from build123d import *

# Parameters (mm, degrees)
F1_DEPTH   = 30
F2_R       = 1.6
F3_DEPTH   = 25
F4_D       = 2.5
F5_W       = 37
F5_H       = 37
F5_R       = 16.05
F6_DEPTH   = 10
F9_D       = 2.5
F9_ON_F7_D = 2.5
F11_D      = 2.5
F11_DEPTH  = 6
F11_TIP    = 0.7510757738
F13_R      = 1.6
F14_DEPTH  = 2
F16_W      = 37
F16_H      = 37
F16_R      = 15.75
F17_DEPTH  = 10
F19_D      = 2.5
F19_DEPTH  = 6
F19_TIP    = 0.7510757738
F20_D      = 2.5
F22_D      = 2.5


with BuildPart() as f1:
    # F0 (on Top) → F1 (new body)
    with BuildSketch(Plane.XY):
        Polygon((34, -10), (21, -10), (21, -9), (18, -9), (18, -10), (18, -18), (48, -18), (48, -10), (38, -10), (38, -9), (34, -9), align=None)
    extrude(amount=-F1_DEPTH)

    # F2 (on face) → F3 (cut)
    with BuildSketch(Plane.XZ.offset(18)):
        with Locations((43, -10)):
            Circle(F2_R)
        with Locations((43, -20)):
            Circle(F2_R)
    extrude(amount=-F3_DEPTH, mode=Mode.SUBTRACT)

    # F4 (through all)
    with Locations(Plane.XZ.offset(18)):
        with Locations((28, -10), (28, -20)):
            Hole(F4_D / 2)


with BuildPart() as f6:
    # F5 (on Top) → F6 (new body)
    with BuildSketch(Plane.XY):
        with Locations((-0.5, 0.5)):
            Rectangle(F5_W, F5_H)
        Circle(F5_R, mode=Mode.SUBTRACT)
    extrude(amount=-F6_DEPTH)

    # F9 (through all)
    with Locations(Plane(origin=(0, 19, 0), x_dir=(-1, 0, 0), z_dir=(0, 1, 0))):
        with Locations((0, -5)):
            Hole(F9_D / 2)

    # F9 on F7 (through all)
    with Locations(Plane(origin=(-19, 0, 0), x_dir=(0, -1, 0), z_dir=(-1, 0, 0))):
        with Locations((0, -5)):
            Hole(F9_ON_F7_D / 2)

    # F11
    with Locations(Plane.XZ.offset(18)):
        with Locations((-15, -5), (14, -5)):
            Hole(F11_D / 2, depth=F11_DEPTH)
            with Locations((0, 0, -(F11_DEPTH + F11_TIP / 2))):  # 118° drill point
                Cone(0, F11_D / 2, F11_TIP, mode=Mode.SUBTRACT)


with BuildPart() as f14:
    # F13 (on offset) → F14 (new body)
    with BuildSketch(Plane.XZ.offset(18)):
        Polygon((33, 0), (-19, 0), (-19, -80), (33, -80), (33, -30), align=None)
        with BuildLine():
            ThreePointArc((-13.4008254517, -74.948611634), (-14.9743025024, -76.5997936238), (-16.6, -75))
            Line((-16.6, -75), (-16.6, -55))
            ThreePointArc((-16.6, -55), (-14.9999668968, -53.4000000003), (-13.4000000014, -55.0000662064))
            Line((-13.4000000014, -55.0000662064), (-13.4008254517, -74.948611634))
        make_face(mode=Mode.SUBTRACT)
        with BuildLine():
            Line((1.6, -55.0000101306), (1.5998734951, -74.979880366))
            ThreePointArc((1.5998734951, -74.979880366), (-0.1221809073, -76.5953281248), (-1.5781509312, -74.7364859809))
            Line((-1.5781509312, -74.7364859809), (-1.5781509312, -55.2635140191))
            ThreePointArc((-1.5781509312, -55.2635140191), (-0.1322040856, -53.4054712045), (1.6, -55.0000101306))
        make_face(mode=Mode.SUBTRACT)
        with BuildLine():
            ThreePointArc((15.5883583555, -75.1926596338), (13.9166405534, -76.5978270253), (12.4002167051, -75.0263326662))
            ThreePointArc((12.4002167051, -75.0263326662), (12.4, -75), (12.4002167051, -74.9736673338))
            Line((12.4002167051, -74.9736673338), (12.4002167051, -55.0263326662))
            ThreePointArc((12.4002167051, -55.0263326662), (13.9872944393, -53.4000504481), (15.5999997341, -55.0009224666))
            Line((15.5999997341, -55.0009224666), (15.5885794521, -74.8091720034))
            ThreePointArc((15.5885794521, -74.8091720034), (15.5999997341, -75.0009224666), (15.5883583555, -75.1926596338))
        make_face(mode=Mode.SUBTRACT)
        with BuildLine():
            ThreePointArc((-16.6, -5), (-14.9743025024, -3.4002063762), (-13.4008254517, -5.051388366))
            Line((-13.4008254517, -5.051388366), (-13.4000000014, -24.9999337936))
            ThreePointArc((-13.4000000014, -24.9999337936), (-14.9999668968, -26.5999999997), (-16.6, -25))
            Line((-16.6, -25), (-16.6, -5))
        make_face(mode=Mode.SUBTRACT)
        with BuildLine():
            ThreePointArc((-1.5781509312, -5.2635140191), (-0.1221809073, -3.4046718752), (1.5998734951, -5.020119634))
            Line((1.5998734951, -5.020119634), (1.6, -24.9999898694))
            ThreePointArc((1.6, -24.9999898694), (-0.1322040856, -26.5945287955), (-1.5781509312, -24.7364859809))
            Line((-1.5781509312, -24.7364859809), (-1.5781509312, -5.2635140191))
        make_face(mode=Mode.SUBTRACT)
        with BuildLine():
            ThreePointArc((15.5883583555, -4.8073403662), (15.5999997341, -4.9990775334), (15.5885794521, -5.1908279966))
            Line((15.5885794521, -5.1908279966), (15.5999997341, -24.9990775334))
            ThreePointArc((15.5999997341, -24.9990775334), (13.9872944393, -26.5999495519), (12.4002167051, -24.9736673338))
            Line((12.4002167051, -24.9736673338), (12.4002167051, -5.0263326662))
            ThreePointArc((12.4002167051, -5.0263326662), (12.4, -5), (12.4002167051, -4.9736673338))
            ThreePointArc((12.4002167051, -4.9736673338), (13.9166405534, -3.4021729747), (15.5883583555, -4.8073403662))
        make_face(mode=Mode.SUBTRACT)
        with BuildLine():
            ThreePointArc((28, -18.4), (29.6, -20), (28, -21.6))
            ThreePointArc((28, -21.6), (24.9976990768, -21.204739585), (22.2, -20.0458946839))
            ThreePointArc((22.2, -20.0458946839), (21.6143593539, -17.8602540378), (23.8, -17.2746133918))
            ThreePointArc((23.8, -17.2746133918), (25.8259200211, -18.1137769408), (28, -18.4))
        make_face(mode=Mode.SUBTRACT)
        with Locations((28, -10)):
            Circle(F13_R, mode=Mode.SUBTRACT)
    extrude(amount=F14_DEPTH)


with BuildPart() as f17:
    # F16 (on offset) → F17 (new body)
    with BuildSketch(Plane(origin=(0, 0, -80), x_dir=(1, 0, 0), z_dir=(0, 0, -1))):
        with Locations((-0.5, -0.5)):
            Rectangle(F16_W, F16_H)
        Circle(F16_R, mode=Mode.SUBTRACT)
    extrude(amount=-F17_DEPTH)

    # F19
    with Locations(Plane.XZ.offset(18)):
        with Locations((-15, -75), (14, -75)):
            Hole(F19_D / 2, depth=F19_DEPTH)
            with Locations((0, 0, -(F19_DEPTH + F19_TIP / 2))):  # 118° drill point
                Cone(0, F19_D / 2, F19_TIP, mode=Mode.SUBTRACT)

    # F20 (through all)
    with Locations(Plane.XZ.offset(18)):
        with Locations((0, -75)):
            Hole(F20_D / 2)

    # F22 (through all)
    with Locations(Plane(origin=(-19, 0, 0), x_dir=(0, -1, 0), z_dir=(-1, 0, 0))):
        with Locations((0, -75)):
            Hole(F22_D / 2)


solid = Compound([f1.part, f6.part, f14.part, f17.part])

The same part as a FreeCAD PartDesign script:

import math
import FreeCAD as App
import Part
import Sketcher
from FreeCAD import Vector


def add_polygon(sketch, points):
    """Adds a closed chain of lines whose ends are joined by coincident constraints."""
    first, n = sketch.GeometryCount, len(points)
    for a, b in zip(points, points[1:] + points[:1]):
        sketch.addGeometry(Part.LineSegment(App.Vector(*a, 0), App.Vector(*b, 0)), False)
    for i in range(n):
        sketch.addConstraint(Sketcher.Constraint("Coincident", first + i, 2, first + (i + 1) % n, 1))

doc = App.newDocument("Part")
body = doc.addObject("PartDesign::Body", "Body")

sketch1 = body.newObject("Sketcher::SketchObject", "Sketch")
sketch1.AttachmentSupport = (doc.getObject("XY_Plane"), [""])
sketch1.MapMode = "FlatFace"
add_polygon(sketch1, [(34, -10), (21, -10), (21, -9), (18, -9), (18, -18), (48, -18), (48, -10), (38, -10), (38, -9), (34, -9)])
sketch1.addConstraint(Sketcher.Constraint("Horizontal", 0))
sketch1.addConstraint(Sketcher.Constraint("Vertical", 1))
sketch1.addConstraint(Sketcher.Constraint("Horizontal", 2))
sketch1.addConstraint(Sketcher.Constraint("Vertical", 3))
sketch1.addConstraint(Sketcher.Constraint("Horizontal", 4))
sketch1.addConstraint(Sketcher.Constraint("Vertical", 5))
sketch1.addConstraint(Sketcher.Constraint("Horizontal", 6))
sketch1.addConstraint(Sketcher.Constraint("Vertical", 7))
sketch1.addConstraint(Sketcher.Constraint("Horizontal", 8))
sketch1.addConstraint(Sketcher.Constraint("Vertical", 9))
sketch1.addConstraint(Sketcher.Constraint("Horizontal", 0, 2, 5, 2))
sketch1.addConstraint(Sketcher.Constraint("Horizontal", 2, 2, 7, 2))
sketch1.addConstraint(Sketcher.Constraint("DistanceX", 0, 2, 0, 1, 13.0))
sketch1.addConstraint(Sketcher.Constraint("DistanceX", 2, 2, 2, 1, 3.0))
sketch1.addConstraint(Sketcher.Constraint("DistanceX", 4, 1, 4, 2, 30.0))
sketch1.addConstraint(Sketcher.Constraint("DistanceX", 6, 2, 6, 1, 10.0))
sketch1.addConstraint(Sketcher.Constraint("DistanceY", 1, 1, 1, 2, 1.0))
sketch1.addConstraint(Sketcher.Constraint("DistanceY", 3, 2, 3, 1, 9.0))
sketch1.addConstraint(Sketcher.Constraint("DistanceX", -1, 1, 0, 2, 21.0))
sketch1.addConstraint(Sketcher.Constraint("DistanceY", 0, 2, -1, 1, 10.0))
pad1 = body.newObject("PartDesign::Pad", "Pad")
pad1.Profile = sketch1
pad1.Length = 30
pad1.Reversed = True

sketch2 = body.newObject("Sketcher::SketchObject", "Sketch001")
sketch2.AttachmentSupport = (doc.getObject("XZ_Plane"), [""])
sketch2.MapMode = "FlatFace"
sketch2.AttachmentOffset = App.Placement(Vector(0, 0, 18), App.Rotation())
sketch2.addGeometry(Part.Circle(Vector(43, -10, 0), Vector(0, 0, 1), 1.6), False)
sketch2.addGeometry(Part.Circle(Vector(43, -20, 0), Vector(0, 0, 1), 1.6), False)
sketch2.addConstraint(Sketcher.Constraint("Equal", 0, 1))
sketch2.addConstraint(Sketcher.Constraint("Vertical", 0, 3, 1, 3))
sketch2.addConstraint(Sketcher.Constraint("Diameter", 0, 3.2))
sketch2.addConstraint(Sketcher.Constraint("DistanceX", -1, 1, 0, 3, 43.0))
sketch2.addConstraint(Sketcher.Constraint("DistanceY", 0, 3, -1, 1, 10.0))
sketch2.addConstraint(Sketcher.Constraint("DistanceY", 1, 3, -1, 1, 20.0))
pocket1 = body.newObject("PartDesign::Pocket", "Pocket")
pocket1.Profile = sketch2
pocket1.Length = 25

sketch3 = body.newObject("Sketcher::SketchObject", "Sketch002")
sketch3.AttachmentSupport = (doc.getObject("XZ_Plane"), [""])
sketch3.MapMode = "FlatFace"
sketch3.AttachmentOffset = App.Placement(Vector(0, 0, 18), App.Rotation())
sketch3.addGeometry(Part.Circle(Vector(28, -10, 0), Vector(0, 0, 1), 1.2), False)
sketch3.addGeometry(Part.Circle(Vector(28, -20, 0), Vector(0, 0, 1), 1.2), False)
sketch3.addConstraint(Sketcher.Constraint("Equal", 0, 1))
sketch3.addConstraint(Sketcher.Constraint("Vertical", 0, 3, 1, 3))
sketch3.addConstraint(Sketcher.Constraint("Diameter", 0, 2.5))
sketch3.addConstraint(Sketcher.Constraint("DistanceX", -1, 1, 0, 3, 28.0))
sketch3.addConstraint(Sketcher.Constraint("DistanceY", 0, 3, -1, 1, 10.0))
sketch3.addConstraint(Sketcher.Constraint("DistanceY", 1, 3, -1, 1, 20.0))
doc.recompute()
hole = body.newObject("PartDesign::Hole", "Hole")
hole.Profile = sketch3
hole.ThreadType = "None"
hole.Diameter = 2.5
hole.DepthType = "ThroughAll"
body2 = doc.addObject("PartDesign::Body", "Body001")

sketch4 = body2.newObject("Sketcher::SketchObject", "Sketch003")
sketch4.AttachmentSupport = (doc.getObject("XY_Plane001"), [""])
sketch4.MapMode = "FlatFace"
add_polygon(sketch4, [(-19, 19), (-19, -18), (18, -18), (18, 19)])
sketch4.addGeometry(Part.Circle(Vector(0, 0, 0), Vector(0, 0, 1), 16), False)
sketch4.addConstraint(Sketcher.Constraint("Vertical", 0))
sketch4.addConstraint(Sketcher.Constraint("Horizontal", 1))
sketch4.addConstraint(Sketcher.Constraint("Vertical", 2))
sketch4.addConstraint(Sketcher.Constraint("Horizontal", 3))
sketch4.addConstraint(Sketcher.Constraint("Coincident", 4, 3, -1, 1))
sketch4.addConstraint(Sketcher.Constraint("Equal", 3, 0))
sketch4.addConstraint(Sketcher.Constraint("Diameter", 4, 32.1))
sketch4.addConstraint(Sketcher.Constraint("DistanceX", 1, 1, 1, 2, 37.0))
sketch4.addConstraint(Sketcher.Constraint("DistanceX", 0, 2, -1, 1, 19.0))
sketch4.addConstraint(Sketcher.Constraint("DistanceY", 0, 2, -1, 1, 18.0))
pad2 = body2.newObject("PartDesign::Pad", "Pad001")
pad2.Profile = sketch4
pad2.Length = 10
pad2.Reversed = True

sketch5 = body2.newObject("Sketcher::SketchObject", "Sketch004")
sketch5.AttachmentSupport = (doc.getObject("XZ_Plane001"), [""])
sketch5.MapMode = "FlatFace"
sketch5.AttachmentOffset = App.Placement(Vector(0, 0, -19), App.Rotation())
sketch5.addGeometry(Part.Circle(Vector(0, -5, 0), Vector(0, 0, 1), 1.2), False)
sketch5.addConstraint(Sketcher.Constraint("PointOnObject", 0, 3, -2))
sketch5.addConstraint(Sketcher.Constraint("Diameter", 0, 2.5))
sketch5.addConstraint(Sketcher.Constraint("DistanceY", 0, 3, -1, 1, 5.0))
doc.recompute()
hole2 = body2.newObject("PartDesign::Hole", "Hole001")
hole2.Profile = sketch5
hole2.ThreadType = "None"
hole2.Diameter = 2.5
hole2.DepthType = "ThroughAll"
hole2.Reversed = True

sketch6 = body2.newObject("Sketcher::SketchObject", "Sketch005")
sketch6.AttachmentSupport = (doc.getObject("YZ_Plane001"), [""])
sketch6.MapMode = "FlatFace"
sketch6.AttachmentOffset = App.Placement(Vector(0, 0, -19), App.Rotation())
sketch6.addGeometry(Part.Circle(Vector(0, -5, 0), Vector(0, 0, 1), 1.2), False)
sketch6.addConstraint(Sketcher.Constraint("PointOnObject", 0, 3, -2))
sketch6.addConstraint(Sketcher.Constraint("Diameter", 0, 2.5))
sketch6.addConstraint(Sketcher.Constraint("DistanceY", 0, 3, -1, 1, 5.0))
doc.recompute()
hole3 = body2.newObject("PartDesign::Hole", "Hole002")
hole3.Profile = sketch6
hole3.ThreadType = "None"
hole3.Diameter = 2.5
hole3.DepthType = "ThroughAll"
hole3.Reversed = True

sketch7 = body2.newObject("Sketcher::SketchObject", "Sketch006")
sketch7.AttachmentSupport = (doc.getObject("XZ_Plane001"), [""])
sketch7.MapMode = "FlatFace"
sketch7.AttachmentOffset = App.Placement(Vector(0, 0, 18), App.Rotation())
sketch7.addGeometry(Part.Circle(Vector(-15, -5, 0), Vector(0, 0, 1), 1.2), False)
sketch7.addGeometry(Part.Circle(Vector(14, -5, 0), Vector(0, 0, 1), 1.2), False)
sketch7.addConstraint(Sketcher.Constraint("Equal", 0, 1))
sketch7.addConstraint(Sketcher.Constraint("Horizontal", 0, 3, 1, 3))
sketch7.addConstraint(Sketcher.Constraint("Diameter", 0, 2.5))
sketch7.addConstraint(Sketcher.Constraint("DistanceX", 0, 3, -1, 1, 15.0))
sketch7.addConstraint(Sketcher.Constraint("DistanceY", 0, 3, -1, 1, 5.0))
sketch7.addConstraint(Sketcher.Constraint("DistanceX", -1, 1, 1, 3, 14.0))
doc.recompute()
hole4 = body2.newObject("PartDesign::Hole", "Hole003")
hole4.Profile = sketch7
hole4.ThreadType = "None"
hole4.Diameter = 2.5
hole4.DepthType = "Dimension"
hole4.Depth = 6
hole4.DrillPoint = "Angled"
hole4.DrillPointAngle = 118
body3 = doc.addObject("PartDesign::Body", "Body002")

sketch8 = body3.newObject("Sketcher::SketchObject", "Sketch007")
sketch8.AttachmentSupport = (doc.getObject("XZ_Plane002"), [""])
sketch8.MapMode = "FlatFace"
sketch8.AttachmentOffset = App.Placement(Vector(0, 0, 18), App.Rotation())
add_polygon(sketch8, [(33, 0), (-19, 0), (-19, -80), (33, -80)])
sketch8.addGeometry(Part.LineSegment(Vector(-13.4, -55, 0), Vector(-13.4, -74.95, 0)), False)
sketch8.addGeometry(Part.ArcOfCircle(Part.Circle(Vector(-15, -75, 0), Vector(0, 0, 1), 1.6), math.radians(180), math.radians(362)), False)
sketch8.addGeometry(Part.LineSegment(Vector(-16.6, -75, 0), Vector(-16.6, -55, 0)), False)
sketch8.addGeometry(Part.ArcOfCircle(Part.Circle(Vector(-15, -55, 0), Vector(0, 0, 1), 1.6), math.radians(0), math.radians(180)), False)
sketch8.addGeometry(Part.ArcOfCircle(Part.Circle(Vector(0, -55, 0), Vector(0, 0, 1), 1.6), math.radians(0), math.radians(189)), False)
sketch8.addGeometry(Part.LineSegment(Vector(1.6, -55, 0), Vector(1.6, -74.98, 0)), False)
sketch8.addGeometry(Part.ArcOfCircle(Part.Circle(Vector(0, -75, 0), Vector(0, 0, 1), 1.6), math.radians(171), math.radians(361)), False)
sketch8.addGeometry(Part.LineSegment(Vector(-1.58, -74.74, 0), Vector(-1.58, -55.26, 0)), False)
sketch8.addGeometry(Part.ArcOfCircle(Part.Circle(Vector(14, -75, 0), Vector(0, 0, 1), 1.6), math.radians(-6.92), math.radians(6.85)), False)
sketch8.addGeometry(Part.ArcOfCircle(Part.Circle(Vector(14, -75, 0), Vector(0, 0, 1), 1.6), math.radians(-179), math.radians(-7)), False)
sketch8.addGeometry(Part.ArcOfCircle(Part.Circle(Vector(14, -75, 0), Vector(0, 0, 1), 1.6), math.radians(179.06), math.radians(180.94)), False)
sketch8.addGeometry(Part.LineSegment(Vector(12.4, -74.97, 0), Vector(12.4, -55.03, 0)), False)
sketch8.addGeometry(Part.ArcOfCircle(Part.Circle(Vector(14, -55, 0), Vector(0, 0, 1), 1.6), math.radians(0), math.radians(181)), False)
sketch8.addGeometry(Part.LineSegment(Vector(15.6, -55, 0), Vector(15.59, -74.81, 0)), False)
sketch8.addGeometry(Part.LineSegment(Vector(-16.6, -25, 0), Vector(-16.6, -5, 0)), False)
sketch8.addGeometry(Part.ArcOfCircle(Part.Circle(Vector(-15, -5, 0), Vector(0, 0, 1), 1.6), math.radians(-2), math.radians(180)), False)
sketch8.addGeometry(Part.LineSegment(Vector(-13.4, -5.05, 0), Vector(-13.4, -25, 0)), False)
sketch8.addGeometry(Part.ArcOfCircle(Part.Circle(Vector(-15, -25, 0), Vector(0, 0, 1), 1.6), math.radians(180), math.radians(360)), False)
sketch8.addGeometry(Part.LineSegment(Vector(-1.58, -24.74, 0), Vector(-1.58, -5.26, 0)), False)
sketch8.addGeometry(Part.ArcOfCircle(Part.Circle(Vector(0, -5, 0), Vector(0, 0, 1), 1.6), math.radians(-1), math.radians(189)), False)
sketch8.addGeometry(Part.LineSegment(Vector(1.6, -5.02, 0), Vector(1.6, -25, 0)), False)
sketch8.addGeometry(Part.ArcOfCircle(Part.Circle(Vector(0, -25, 0), Vector(0, 0, 1), 1.6), math.radians(171), math.radians(360)), False)
sketch8.addGeometry(Part.ArcOfCircle(Part.Circle(Vector(14, -5, 0), Vector(0, 0, 1), 1.6), math.radians(7), math.radians(179)), False)
sketch8.addGeometry(Part.ArcOfCircle(Part.Circle(Vector(14, -5, 0), Vector(0, 0, 1), 1.6), math.radians(-6.85), math.radians(6.92)), False)
sketch8.addGeometry(Part.LineSegment(Vector(15.59, -5.19, 0), Vector(15.6, -25, 0)), False)
sketch8.addGeometry(Part.ArcOfCircle(Part.Circle(Vector(14, -25, 0), Vector(0, 0, 1), 1.6), math.radians(179), math.radians(360)), False)
sketch8.addGeometry(Part.LineSegment(Vector(12.4, -24.97, 0), Vector(12.4, -5.03, 0)), False)
sketch8.addGeometry(Part.ArcOfCircle(Part.Circle(Vector(14, -5, 0), Vector(0, 0, 1), 1.6), math.radians(179.06), math.radians(180.94)), False)
sketch8.addGeometry(Part.ArcOfCircle(Part.Circle(Vector(28, -10, 0), Vector(0, 0, 1), 8.4), math.radians(-120), math.radians(-90)), False)
sketch8.addGeometry(Part.ArcOfCircle(Part.Circle(Vector(28, -20, 0), Vector(0, 0, 1), 1.6), math.radians(-90), math.radians(90)), False)
sketch8.addGeometry(Part.ArcOfCircle(Part.Circle(Vector(28, -10, 0), Vector(0, 0, 1), 11.6), math.radians(-120), math.radians(-90)), False)
sketch8.addGeometry(Part.ArcOfCircle(Part.Circle(Vector(23, -18.66, 0), Vector(0, 0, 1), 1.6), math.radians(60), math.radians(240)), False)
sketch8.addGeometry(Part.Circle(Vector(28, -10, 0), Vector(0, 0, 1), 1.6), False)
sketch8.addConstraint(Sketcher.Constraint("Coincident", 4, 2, 5, 2))
sketch8.addConstraint(Sketcher.Constraint("Tangent", 5, 1, 6, 1))
sketch8.addConstraint(Sketcher.Constraint("Tangent", 6, 2, 7, 2))
sketch8.addConstraint(Sketcher.Constraint("Tangent", 7, 1, 4, 1))
sketch8.addConstraint(Sketcher.Constraint("Tangent", 8, 1, 9, 1))
sketch8.addConstraint(Sketcher.Constraint("Coincident", 9, 2, 10, 2))
sketch8.addConstraint(Sketcher.Constraint("Coincident", 10, 1, 11, 1))
sketch8.addConstraint(Sketcher.Constraint("Coincident", 11, 2, 8, 2))
sketch8.addConstraint(Sketcher.Constraint("Tangent", 12, 1, 13, 2))
sketch8.addConstraint(Sketcher.Constraint("Tangent", 13, 1, 14, 2))
sketch8.addConstraint(Sketcher.Constraint("Coincident", 14, 1, 15, 1))
sketch8.addConstraint(Sketcher.Constraint("Coincident", 15, 2, 16, 2))
sketch8.addConstraint(Sketcher.Constraint("Tangent", 16, 1, 17, 1))
sketch8.addConstraint(Sketcher.Constraint("Coincident", 17, 2, 12, 2))
sketch8.addConstraint(Sketcher.Constraint("Tangent", 18, 2, 19, 2))
sketch8.addConstraint(Sketcher.Constraint("Coincident", 19, 1, 20, 1))
sketch8.addConstraint(Sketcher.Constraint("Tangent", 20, 2, 21, 2))
sketch8.addConstraint(Sketcher.Constraint("Tangent", 21, 1, 18, 1))
sketch8.addConstraint(Sketcher.Constraint("Coincident", 22, 2, 23, 2))
sketch8.addConstraint(Sketcher.Constraint("Coincident", 23, 1, 24, 1))
sketch8.addConstraint(Sketcher.Constraint("Tangent", 24, 2, 25, 2))
sketch8.addConstraint(Sketcher.Constraint("Coincident", 25, 1, 22, 1))
sketch8.addConstraint(Sketcher.Constraint("Tangent", 26, 1, 27, 2))
sketch8.addConstraint(Sketcher.Constraint("Coincident", 27, 1, 28, 1))
sketch8.addConstraint(Sketcher.Constraint("Tangent", 28, 2, 29, 2))
sketch8.addConstraint(Sketcher.Constraint("Coincident", 29, 1, 30, 1))
sketch8.addConstraint(Sketcher.Constraint("Coincident", 30, 2, 31, 2))
sketch8.addConstraint(Sketcher.Constraint("Tangent", 31, 1, 26, 2))
sketch8.addConstraint(Sketcher.Constraint("Tangent", 32, 2, 33, 2))
sketch8.addConstraint(Sketcher.Constraint("Tangent", 33, 1, 34, 2))
sketch8.addConstraint(Sketcher.Constraint("Tangent", 34, 1, 35, 2))
sketch8.addConstraint(Sketcher.Constraint("Tangent", 35, 1, 32, 1))
sketch8.addConstraint(Sketcher.Constraint("Horizontal", 0))
sketch8.addConstraint(Sketcher.Constraint("Vertical", 1))
sketch8.addConstraint(Sketcher.Constraint("Horizontal", 2))
sketch8.addConstraint(Sketcher.Constraint("Vertical", 3))
sketch8.addConstraint(Sketcher.Constraint("Vertical", 6))
sketch8.addConstraint(Sketcher.Constraint("Vertical", 11))
sketch8.addConstraint(Sketcher.Constraint("Vertical", 15))
sketch8.addConstraint(Sketcher.Constraint("Vertical", 18))
sketch8.addConstraint(Sketcher.Constraint("Vertical", 22))
sketch8.addConstraint(Sketcher.Constraint("Vertical", 30))
sketch8.addConstraint(Sketcher.Constraint("Coincident", 14, 3, 12, 3))
sketch8.addConstraint(Sketcher.Constraint("Coincident", 34, 3, 32, 3))
sketch8.addConstraint(Sketcher.Constraint("Coincident", 36, 3, 32, 3))
sketch8.addConstraint(Sketcher.Constraint("Equal", 5, 7))
sketch8.addConstraint(Sketcher.Constraint("Equal", 7, 8))
sketch8.addConstraint(Sketcher.Constraint("Equal", 8, 10))
sketch8.addConstraint(Sketcher.Constraint("Equal", 10, 12))
sketch8.addConstraint(Sketcher.Constraint("Equal", 14, 16))
sketch8.addConstraint(Sketcher.Constraint("Equal", 16, 19))
sketch8.addConstraint(Sketcher.Constraint("Equal", 19, 21))
sketch8.addConstraint(Sketcher.Constraint("Equal", 21, 23))
sketch8.addConstraint(Sketcher.Constraint("Equal", 23, 25))
sketch8.addConstraint(Sketcher.Constraint("Equal", 25, 26))
sketch8.addConstraint(Sketcher.Constraint("Equal", 26, 27))
sketch8.addConstraint(Sketcher.Constraint("Equal", 27, 29))
sketch8.addConstraint(Sketcher.Constraint("Equal", 29, 31))
sketch8.addConstraint(Sketcher.Constraint("Equal", 31, 33))
sketch8.addConstraint(Sketcher.Constraint("Equal", 35, 36))
sketch8.addConstraint(Sketcher.Constraint("PointOnObject", 8, 3, -2))
sketch8.addConstraint(Sketcher.Constraint("PointOnObject", 10, 3, -2))
sketch8.addConstraint(Sketcher.Constraint("PointOnObject", 23, 3, -2))
sketch8.addConstraint(Sketcher.Constraint("PointOnObject", 25, 3, -2))
sketch8.addConstraint(Sketcher.Constraint("PointOnObject", 0, 2, -1))
sketch8.addConstraint(Sketcher.Constraint("Horizontal", 7, 3, 8, 3))
sketch8.addConstraint(Sketcher.Constraint("Horizontal", 5, 3, 10, 3))
sketch8.addConstraint(Sketcher.Constraint("Horizontal", 10, 3, 12, 3))
sketch8.addConstraint(Sketcher.Constraint("Horizontal", 8, 3, 16, 3))
sketch8.addConstraint(Sketcher.Constraint("Horizontal", 19, 3, 23, 3))
sketch8.addConstraint(Sketcher.Constraint("Horizontal", 21, 3, 25, 3))
sketch8.addConstraint(Sketcher.Constraint("Horizontal", 23, 3, 26, 3))
sketch8.addConstraint(Sketcher.Constraint("Horizontal", 25, 3, 29, 3))
sketch8.addConstraint(Sketcher.Constraint("Vertical", 14, 3, 16, 3))
sketch8.addConstraint(Sketcher.Constraint("Vertical", 7, 3, 19, 3))
sketch8.addConstraint(Sketcher.Constraint("Vertical", 16, 3, 26, 3))
sketch8.addConstraint(Sketcher.Constraint("Vertical", 27, 3, 29, 3))
sketch8.addConstraint(Sketcher.Constraint("Vertical", 32, 3, 33, 3))
sketch8.addConstraint(Sketcher.Constraint("Vertical", 13, 1, 14, 1))
sketch8.addConstraint(Sketcher.Constraint("Vertical", 4, 2, 19, 1))
sketch8.addConstraint(Sketcher.Constraint("Vertical", 11, 2, 22, 2))
sketch8.addConstraint(Sketcher.Constraint("Vertical", 9, 2, 23, 1))
sketch8.addConstraint(Sketcher.Constraint("Vertical", 12, 1, 26, 1))
sketch8.addConstraint(Sketcher.Constraint("Vertical", 17, 2, 27, 1))
sketch8.addConstraint(Sketcher.Constraint("Vertical", 15, 2, 29, 1))
sketch8.addConstraint(Sketcher.Constraint("Vertical", 30, 2, 31, 1))
sketch8.addConstraint(Sketcher.Constraint("Equal", 6, 18))
sketch8.addConstraint(Sketcher.Constraint("Diameter", 36, 3.2))
sketch8.addConstraint(Sketcher.Constraint("Radius", 32, 8.4))
sketch8.addConstraint(Sketcher.Constraint("DistanceX", 0, 2, 0, 1, 52.0))
sketch8.addConstraint(Sketcher.Constraint("DistanceY", 1, 2, 1, 1, 80.0))
sketch8.addConstraint(Sketcher.Constraint("DistanceY", 6, 1, 6, 2, 20.0))
sketch8.addConstraint(Sketcher.Constraint("DistanceX", 5, 3, -1, 1, 15.0))
sketch8.addConstraint(Sketcher.Constraint("DistanceY", 5, 3, -1, 1, 75.0))
sketch8.addConstraint(Sketcher.Constraint("DistanceX", -1, 1, 12, 3, 14.0))
sketch8.addConstraint(Sketcher.Constraint("DistanceY", 19, 3, -1, 1, 5.0))
sketch8.addConstraint(Sketcher.Constraint("DistanceX", -1, 1, 32, 3, 28.0))
sketch8.addConstraint(Sketcher.Constraint("DistanceY", 32, 3, -1, 1, 10.0))
sketch8.addConstraint(Sketcher.Constraint("DistanceX", -1, 1, 35, 3, 23.0))
sketch8.addConstraint(Sketcher.Constraint("DistanceX", 0, 2, -1, 1, 19.0))
sketch8.addConstraint(Sketcher.Constraint("DistanceY", 11, 1, 11, 2, 19.472972))
sketch8.addConstraint(Sketcher.Constraint("DistanceX", 4, 2, 9, 2, 15.000699))
sketch8.addConstraint(Sketcher.Constraint("Distance", 9, 19.97987))
sketch8.addConstraint(Sketcher.Constraint("DistanceY", 15, 1, 15, 2, 19.947335))
sketch8.addConstraint(Sketcher.Constraint("DistanceX", -1, 1, 12, 1, 15.588358))
sketch8.addConstraint(Sketcher.Constraint("DistanceX", -1, 1, 17, 2, 15.588579))
pad3 = body3.newObject("PartDesign::Pad", "Pad002")
pad3.Profile = sketch8
pad3.Length = 2
body4 = doc.addObject("PartDesign::Body", "Body003")

sketch9 = body4.newObject("Sketcher::SketchObject", "Sketch008")
sketch9.AttachmentSupport = (doc.getObject("XY_Plane003"), [""])
sketch9.MapMode = "FlatFace"
sketch9.AttachmentOffset = App.Placement(Vector(0, 0, -80), App.Rotation())
add_polygon(sketch9, [(-19, -18), (-19, 19), (18, 19), (18, -18)])
sketch9.addGeometry(Part.Circle(Vector(0, 0, 0), Vector(0, 0, 1), 16), False)
sketch9.addConstraint(Sketcher.Constraint("Vertical", 0))
sketch9.addConstraint(Sketcher.Constraint("Horizontal", 1))
sketch9.addConstraint(Sketcher.Constraint("Vertical", 2))
sketch9.addConstraint(Sketcher.Constraint("Horizontal", 3))
sketch9.addConstraint(Sketcher.Constraint("Coincident", 4, 3, -1, 1))
sketch9.addConstraint(Sketcher.Constraint("Equal", 3, 0))
sketch9.addConstraint(Sketcher.Constraint("Diameter", 4, 31.5))
sketch9.addConstraint(Sketcher.Constraint("DistanceX", 1, 1, 1, 2, 37.0))
sketch9.addConstraint(Sketcher.Constraint("DistanceX", 0, 2, -1, 1, 19.0))
sketch9.addConstraint(Sketcher.Constraint("DistanceY", -1, 1, 0, 2, 19.0))
pad4 = body4.newObject("PartDesign::Pad", "Pad003")
pad4.Profile = sketch9
pad4.Length = 10

sketch10 = body4.newObject("Sketcher::SketchObject", "Sketch009")
sketch10.AttachmentSupport = (doc.getObject("XZ_Plane003"), [""])
sketch10.MapMode = "FlatFace"
sketch10.AttachmentOffset = App.Placement(Vector(0, 0, 18), App.Rotation())
sketch10.addGeometry(Part.Circle(Vector(-15, -75, 0), Vector(0, 0, 1), 1.2), False)
sketch10.addGeometry(Part.Circle(Vector(14, -75, 0), Vector(0, 0, 1), 1.2), False)
sketch10.addConstraint(Sketcher.Constraint("Equal", 0, 1))
sketch10.addConstraint(Sketcher.Constraint("Horizontal", 0, 3, 1, 3))
sketch10.addConstraint(Sketcher.Constraint("Diameter", 0, 2.5))
sketch10.addConstraint(Sketcher.Constraint("DistanceX", 0, 3, -1, 1, 15.0))
sketch10.addConstraint(Sketcher.Constraint("DistanceY", 0, 3, -1, 1, 75.0))
sketch10.addConstraint(Sketcher.Constraint("DistanceX", -1, 1, 1, 3, 14.0))
doc.recompute()
hole5 = body4.newObject("PartDesign::Hole", "Hole004")
hole5.Profile = sketch10
hole5.ThreadType = "None"
hole5.Diameter = 2.5
hole5.DepthType = "Dimension"
hole5.Depth = 6
hole5.DrillPoint = "Angled"
hole5.DrillPointAngle = 118

sketch11 = body4.newObject("Sketcher::SketchObject", "Sketch010")
sketch11.AttachmentSupport = (doc.getObject("XZ_Plane003"), [""])
sketch11.MapMode = "FlatFace"
sketch11.AttachmentOffset = App.Placement(Vector(0, 0, 18), App.Rotation())
sketch11.addGeometry(Part.Circle(Vector(0, -75, 0), Vector(0, 0, 1), 1.2), False)
sketch11.addConstraint(Sketcher.Constraint("PointOnObject", 0, 3, -2))
sketch11.addConstraint(Sketcher.Constraint("Diameter", 0, 2.5))
sketch11.addConstraint(Sketcher.Constraint("DistanceY", 0, 3, -1, 1, 75.0))
doc.recompute()
hole6 = body4.newObject("PartDesign::Hole", "Hole005")
hole6.Profile = sketch11
hole6.ThreadType = "None"
hole6.Diameter = 2.5
hole6.DepthType = "ThroughAll"

sketch12 = body4.newObject("Sketcher::SketchObject", "Sketch011")
sketch12.AttachmentSupport = (doc.getObject("YZ_Plane003"), [""])
sketch12.MapMode = "FlatFace"
sketch12.AttachmentOffset = App.Placement(Vector(0, 0, -19), App.Rotation())
sketch12.addGeometry(Part.Circle(Vector(0, -75, 0), Vector(0, 0, 1), 1.2), False)
sketch12.addConstraint(Sketcher.Constraint("PointOnObject", 0, 3, -2))
sketch12.addConstraint(Sketcher.Constraint("Diameter", 0, 2.5))
sketch12.addConstraint(Sketcher.Constraint("DistanceY", 0, 3, -1, 1, 75.0))
doc.recompute()
hole7 = body4.newObject("PartDesign::Hole", "Hole006")
hole7.Profile = sketch12
hole7.ThreadType = "None"
hole7.Diameter = 2.5
hole7.DepthType = "ThroughAll"
hole7.Reversed = True

doc.recompute()
